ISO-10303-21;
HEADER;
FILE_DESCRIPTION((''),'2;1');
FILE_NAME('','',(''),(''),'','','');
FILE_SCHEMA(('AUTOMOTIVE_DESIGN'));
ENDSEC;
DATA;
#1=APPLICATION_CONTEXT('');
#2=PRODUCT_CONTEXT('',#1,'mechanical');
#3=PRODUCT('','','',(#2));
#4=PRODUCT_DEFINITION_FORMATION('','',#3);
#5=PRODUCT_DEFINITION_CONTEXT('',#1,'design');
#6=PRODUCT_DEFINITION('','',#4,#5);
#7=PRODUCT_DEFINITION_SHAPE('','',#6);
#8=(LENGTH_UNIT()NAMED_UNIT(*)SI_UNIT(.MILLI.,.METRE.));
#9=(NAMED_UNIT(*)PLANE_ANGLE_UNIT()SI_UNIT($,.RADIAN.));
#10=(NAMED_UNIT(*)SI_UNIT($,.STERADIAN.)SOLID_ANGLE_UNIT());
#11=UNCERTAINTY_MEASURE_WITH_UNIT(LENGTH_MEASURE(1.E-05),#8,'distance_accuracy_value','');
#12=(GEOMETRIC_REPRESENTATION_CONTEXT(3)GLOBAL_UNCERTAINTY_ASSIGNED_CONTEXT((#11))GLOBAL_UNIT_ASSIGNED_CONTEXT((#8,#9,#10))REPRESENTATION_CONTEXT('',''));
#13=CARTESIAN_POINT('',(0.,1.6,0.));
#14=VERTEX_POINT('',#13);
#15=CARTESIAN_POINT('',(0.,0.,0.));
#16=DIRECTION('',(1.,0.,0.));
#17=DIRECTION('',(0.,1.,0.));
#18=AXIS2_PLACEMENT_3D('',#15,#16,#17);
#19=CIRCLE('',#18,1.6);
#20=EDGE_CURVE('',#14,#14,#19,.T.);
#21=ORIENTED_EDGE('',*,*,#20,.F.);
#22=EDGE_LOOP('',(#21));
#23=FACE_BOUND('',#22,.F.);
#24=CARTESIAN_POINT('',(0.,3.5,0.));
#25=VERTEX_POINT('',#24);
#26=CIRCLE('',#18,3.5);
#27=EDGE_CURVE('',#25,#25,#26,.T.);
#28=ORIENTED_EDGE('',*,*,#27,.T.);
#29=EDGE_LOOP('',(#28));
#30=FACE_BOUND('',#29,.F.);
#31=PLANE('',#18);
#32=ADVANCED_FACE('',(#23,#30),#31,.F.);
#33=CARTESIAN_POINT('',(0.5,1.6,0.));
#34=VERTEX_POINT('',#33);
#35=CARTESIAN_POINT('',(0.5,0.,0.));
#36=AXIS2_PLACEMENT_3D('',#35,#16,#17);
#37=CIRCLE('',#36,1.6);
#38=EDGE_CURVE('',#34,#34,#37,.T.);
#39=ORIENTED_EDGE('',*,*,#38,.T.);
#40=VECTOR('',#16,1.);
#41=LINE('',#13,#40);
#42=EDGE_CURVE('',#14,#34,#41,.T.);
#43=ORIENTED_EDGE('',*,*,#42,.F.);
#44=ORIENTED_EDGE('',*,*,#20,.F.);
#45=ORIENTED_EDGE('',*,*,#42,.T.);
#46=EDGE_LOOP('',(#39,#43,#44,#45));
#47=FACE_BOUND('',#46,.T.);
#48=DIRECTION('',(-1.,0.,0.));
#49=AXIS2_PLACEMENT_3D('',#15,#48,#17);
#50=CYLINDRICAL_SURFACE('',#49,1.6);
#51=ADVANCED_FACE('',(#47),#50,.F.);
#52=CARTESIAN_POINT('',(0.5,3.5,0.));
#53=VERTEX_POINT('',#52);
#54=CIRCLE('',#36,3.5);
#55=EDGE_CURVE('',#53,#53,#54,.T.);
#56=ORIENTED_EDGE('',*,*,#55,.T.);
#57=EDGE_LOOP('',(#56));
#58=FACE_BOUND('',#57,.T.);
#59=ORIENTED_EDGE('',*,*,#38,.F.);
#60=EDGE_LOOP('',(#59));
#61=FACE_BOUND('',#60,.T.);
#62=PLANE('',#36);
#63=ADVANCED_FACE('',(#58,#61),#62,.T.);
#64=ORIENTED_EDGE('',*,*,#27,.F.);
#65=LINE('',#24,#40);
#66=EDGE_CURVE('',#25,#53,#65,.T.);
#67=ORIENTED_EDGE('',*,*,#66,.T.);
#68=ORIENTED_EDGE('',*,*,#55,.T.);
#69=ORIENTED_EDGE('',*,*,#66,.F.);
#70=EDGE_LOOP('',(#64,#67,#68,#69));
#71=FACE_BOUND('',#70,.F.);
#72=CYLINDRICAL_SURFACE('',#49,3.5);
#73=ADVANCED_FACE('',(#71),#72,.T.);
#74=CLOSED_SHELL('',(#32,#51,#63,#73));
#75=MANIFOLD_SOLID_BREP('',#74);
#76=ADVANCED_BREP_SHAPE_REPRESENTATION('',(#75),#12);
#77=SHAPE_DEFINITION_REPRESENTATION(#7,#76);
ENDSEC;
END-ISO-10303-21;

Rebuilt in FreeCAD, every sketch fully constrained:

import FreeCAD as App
import Part
import Sketcher

V = App.Vector
Q = App.Units.Quantity

doc = App.newDocument("Part")
body = doc.addObject("PartDesign::Body", "Body")

# Sketch on YZ plane
sketch1 = body.newObject("Sketcher::SketchObject", "Sketch")
sketch1.AttachmentSupport = (doc.getObject("YZ_Plane"), [""])
sketch1.MapMode = "FlatFace"
sketch1.addGeometry([
    Part.Circle(V(0, 0, 0), V(0, 0, 1), 3.5),
    Part.Circle(V(0, 0, 0), V(0, 0, 1), 1.6),
], False)
sketch1.addConstraint([
    Sketcher.Constraint("Coincident", 0, 3, -1, 1),
    Sketcher.Constraint("Coincident", 1, 3, -1, 1),
    Sketcher.Constraint("Diameter", 0, Q("7 mm")),
    Sketcher.Constraint("Diameter", 1, Q("3.2 mm")),
])
pad1 = body.newObject("PartDesign::Pad", "Pad")
pad1.Profile = sketch1
pad1.Length = 0.5

doc.recompute()
